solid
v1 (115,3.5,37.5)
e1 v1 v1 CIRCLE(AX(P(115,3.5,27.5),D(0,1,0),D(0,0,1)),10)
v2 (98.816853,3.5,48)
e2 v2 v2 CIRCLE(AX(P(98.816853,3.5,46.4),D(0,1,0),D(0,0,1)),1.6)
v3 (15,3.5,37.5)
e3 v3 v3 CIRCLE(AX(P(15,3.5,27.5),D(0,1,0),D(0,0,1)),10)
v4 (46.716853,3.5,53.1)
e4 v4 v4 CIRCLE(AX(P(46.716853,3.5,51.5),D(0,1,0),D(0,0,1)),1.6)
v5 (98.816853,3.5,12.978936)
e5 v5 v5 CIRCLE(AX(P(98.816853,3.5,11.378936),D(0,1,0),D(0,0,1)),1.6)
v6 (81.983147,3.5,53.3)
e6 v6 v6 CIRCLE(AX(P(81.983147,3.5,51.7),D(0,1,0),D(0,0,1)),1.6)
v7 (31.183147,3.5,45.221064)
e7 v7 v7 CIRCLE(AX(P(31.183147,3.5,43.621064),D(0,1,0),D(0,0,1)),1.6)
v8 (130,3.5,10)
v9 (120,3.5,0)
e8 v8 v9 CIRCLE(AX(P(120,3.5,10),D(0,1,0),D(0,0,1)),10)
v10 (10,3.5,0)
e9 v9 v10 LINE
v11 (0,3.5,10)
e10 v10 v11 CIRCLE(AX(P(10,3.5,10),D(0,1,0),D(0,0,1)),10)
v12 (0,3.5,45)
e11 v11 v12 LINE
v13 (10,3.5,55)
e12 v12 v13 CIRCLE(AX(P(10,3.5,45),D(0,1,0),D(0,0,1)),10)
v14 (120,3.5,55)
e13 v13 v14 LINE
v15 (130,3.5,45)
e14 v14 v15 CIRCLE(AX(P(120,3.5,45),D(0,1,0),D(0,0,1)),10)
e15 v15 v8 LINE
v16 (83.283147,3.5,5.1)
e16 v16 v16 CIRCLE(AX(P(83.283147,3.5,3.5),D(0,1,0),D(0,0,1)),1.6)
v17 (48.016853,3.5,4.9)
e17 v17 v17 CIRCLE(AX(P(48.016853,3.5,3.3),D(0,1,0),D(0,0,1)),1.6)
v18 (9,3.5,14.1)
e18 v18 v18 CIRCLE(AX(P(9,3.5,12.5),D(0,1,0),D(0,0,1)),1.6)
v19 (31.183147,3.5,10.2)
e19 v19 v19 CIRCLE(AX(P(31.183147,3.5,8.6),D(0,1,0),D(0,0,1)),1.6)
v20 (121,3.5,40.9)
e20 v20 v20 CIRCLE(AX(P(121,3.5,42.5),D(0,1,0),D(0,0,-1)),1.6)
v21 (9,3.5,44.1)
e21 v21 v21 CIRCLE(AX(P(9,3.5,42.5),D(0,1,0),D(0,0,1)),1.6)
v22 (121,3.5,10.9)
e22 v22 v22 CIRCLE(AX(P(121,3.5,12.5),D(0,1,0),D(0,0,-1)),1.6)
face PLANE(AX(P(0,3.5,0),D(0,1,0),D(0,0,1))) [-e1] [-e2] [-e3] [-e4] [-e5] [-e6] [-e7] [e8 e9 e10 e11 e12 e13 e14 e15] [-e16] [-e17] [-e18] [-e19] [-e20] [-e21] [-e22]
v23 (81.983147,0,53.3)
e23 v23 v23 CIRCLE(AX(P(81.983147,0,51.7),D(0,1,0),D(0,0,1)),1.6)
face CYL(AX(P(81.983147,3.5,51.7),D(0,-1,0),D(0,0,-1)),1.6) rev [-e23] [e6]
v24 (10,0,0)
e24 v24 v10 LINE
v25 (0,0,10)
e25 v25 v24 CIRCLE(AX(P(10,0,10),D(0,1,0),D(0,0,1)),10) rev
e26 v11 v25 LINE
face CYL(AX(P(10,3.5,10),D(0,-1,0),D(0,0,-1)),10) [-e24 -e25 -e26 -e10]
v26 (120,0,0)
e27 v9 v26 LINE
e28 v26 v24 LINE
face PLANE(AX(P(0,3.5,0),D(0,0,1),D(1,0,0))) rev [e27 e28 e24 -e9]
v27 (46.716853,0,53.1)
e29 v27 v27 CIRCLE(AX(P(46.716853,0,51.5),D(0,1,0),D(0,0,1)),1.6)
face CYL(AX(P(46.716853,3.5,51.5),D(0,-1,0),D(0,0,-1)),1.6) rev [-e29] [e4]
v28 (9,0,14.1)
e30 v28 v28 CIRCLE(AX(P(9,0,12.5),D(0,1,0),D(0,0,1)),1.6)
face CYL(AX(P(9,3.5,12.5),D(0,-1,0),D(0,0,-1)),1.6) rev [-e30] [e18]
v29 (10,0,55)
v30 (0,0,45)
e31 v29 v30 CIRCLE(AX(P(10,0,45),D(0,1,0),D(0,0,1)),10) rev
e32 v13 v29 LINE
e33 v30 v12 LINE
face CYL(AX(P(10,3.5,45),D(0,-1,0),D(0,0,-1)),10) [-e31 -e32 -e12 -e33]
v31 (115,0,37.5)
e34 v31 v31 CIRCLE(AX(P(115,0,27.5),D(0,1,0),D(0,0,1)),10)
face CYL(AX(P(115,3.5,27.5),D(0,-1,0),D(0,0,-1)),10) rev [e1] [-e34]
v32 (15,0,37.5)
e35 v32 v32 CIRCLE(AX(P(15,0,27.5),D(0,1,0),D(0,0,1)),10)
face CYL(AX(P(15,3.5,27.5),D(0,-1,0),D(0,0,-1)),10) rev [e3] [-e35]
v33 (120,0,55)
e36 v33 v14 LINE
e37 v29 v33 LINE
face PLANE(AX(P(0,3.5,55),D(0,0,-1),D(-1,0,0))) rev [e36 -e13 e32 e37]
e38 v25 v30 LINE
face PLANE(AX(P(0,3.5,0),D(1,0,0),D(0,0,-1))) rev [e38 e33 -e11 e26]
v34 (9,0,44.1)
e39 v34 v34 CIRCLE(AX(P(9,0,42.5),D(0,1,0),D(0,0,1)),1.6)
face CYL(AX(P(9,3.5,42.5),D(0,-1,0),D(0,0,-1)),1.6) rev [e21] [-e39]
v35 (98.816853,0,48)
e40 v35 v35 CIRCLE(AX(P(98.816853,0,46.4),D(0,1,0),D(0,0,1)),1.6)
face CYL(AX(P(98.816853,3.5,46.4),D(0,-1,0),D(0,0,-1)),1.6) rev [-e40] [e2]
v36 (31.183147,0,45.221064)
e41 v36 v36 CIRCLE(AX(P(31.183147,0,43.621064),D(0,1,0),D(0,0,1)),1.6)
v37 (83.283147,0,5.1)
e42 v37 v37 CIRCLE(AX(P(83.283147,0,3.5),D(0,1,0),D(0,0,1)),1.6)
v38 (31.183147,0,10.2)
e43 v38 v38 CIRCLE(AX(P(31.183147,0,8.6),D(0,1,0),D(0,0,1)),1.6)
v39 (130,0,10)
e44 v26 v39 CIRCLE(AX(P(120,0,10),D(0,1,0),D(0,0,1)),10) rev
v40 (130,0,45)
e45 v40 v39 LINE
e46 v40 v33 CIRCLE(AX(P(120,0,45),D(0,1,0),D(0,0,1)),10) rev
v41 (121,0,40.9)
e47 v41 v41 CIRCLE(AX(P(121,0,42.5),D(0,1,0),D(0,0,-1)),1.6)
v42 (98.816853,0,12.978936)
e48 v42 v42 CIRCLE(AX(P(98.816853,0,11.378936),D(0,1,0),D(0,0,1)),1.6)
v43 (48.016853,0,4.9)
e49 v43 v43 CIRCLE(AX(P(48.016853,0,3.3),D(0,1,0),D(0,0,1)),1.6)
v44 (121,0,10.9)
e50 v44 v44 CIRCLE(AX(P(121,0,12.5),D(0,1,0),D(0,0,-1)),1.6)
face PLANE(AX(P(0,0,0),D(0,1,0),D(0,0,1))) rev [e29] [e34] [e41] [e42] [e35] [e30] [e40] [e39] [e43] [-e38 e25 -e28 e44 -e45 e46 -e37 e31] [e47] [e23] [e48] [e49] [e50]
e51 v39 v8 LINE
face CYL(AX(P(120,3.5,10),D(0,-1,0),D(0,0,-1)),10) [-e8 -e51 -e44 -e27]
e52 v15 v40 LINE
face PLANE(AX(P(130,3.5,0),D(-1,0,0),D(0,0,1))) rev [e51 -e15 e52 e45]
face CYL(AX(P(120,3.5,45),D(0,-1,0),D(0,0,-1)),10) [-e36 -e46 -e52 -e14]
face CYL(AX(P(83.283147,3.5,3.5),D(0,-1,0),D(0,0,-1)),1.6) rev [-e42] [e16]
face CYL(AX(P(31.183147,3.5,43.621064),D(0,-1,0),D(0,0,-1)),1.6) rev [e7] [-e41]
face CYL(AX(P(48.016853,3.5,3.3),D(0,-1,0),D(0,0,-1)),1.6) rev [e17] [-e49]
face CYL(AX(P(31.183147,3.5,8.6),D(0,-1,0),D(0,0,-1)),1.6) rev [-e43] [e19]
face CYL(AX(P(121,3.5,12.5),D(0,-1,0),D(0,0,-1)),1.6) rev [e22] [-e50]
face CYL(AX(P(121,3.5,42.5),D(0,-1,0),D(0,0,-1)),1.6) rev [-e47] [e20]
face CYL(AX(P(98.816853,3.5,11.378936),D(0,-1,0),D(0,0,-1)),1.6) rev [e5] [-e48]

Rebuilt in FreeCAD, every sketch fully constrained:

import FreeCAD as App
import Part
import Sketcher

V = App.Vector


def edges_at(feature, points):
    """Names of the edges that pass closest to the given points."""
    edges = feature.Shape.Edges
    near = lambda p: min(range(len(edges)), key=lambda i: edges[i].distToShape(Part.Vertex(*p))[0])
    return sorted({f"Edge{near(p) + 1}" for p in points})


def add_polygon(sketch, points):
    """Adds a closed chain of lines whose ends are joined by coincident constraints."""
    first, n = sketch.GeometryCount, len(points)
    for a, b in zip(points, points[1:] + points[:1]):
        sketch.addGeometry(Part.LineSegment(App.Vector(*a, 0), App.Vector(*b, 0)), False)
    for i in range(n):
        sketch.addConstraint(Sketcher.Constraint("Coincident", first + i, 2, first + (i + 1) % n, 1))

doc = App.newDocument("Part")
body = doc.addObject("PartDesign::Body", "Body")

sketch1 = body.newObject("Sketcher::SketchObject", "Sketch")
sketch1.AttachmentSupport = (doc.getObject("XZ_Plane"), [""])
sketch1.MapMode = "FlatFace"
add_polygon(sketch1, [(0, 0), (0, 55), (130, 55), (130, 0)])
sketch1.addGeometry(Part.Circle(V(9, 42.5, 0), V(0, 0, 1), 1.6), False)
sketch1.addGeometry(Part.Circle(V(31.2, 43.6, 0), V(0, 0, 1), 1.6), False)
sketch1.addGeometry(Part.Circle(V(46.7, 51.5, 0), V(0, 0, 1), 1.6), False)
sketch1.addGeometry(Part.Circle(V(82, 51.7, 0), V(0, 0, 1), 1.6), False)
sketch1.addGeometry(Part.Circle(V(98.8, 46.4, 0), V(0, 0, 1), 1.6), False)
sketch1.addGeometry(Part.Circle(V(121, 42.5, 0), V(0, 0, 1), 1.6), False)
sketch1.addGeometry(Part.Circle(V(15, 27.5, 0), V(0, 0, 1), 10), False)
sketch1.addGeometry(Part.Circle(V(9, 12.5, 0), V(0, 0, 1), 1.6), False)
sketch1.addGeometry(Part.Circle(V(31.2, 8.6, 0), V(0, 0, 1), 1.6), False)
sketch1.addGeometry(Part.Circle(V(48, 3.3, 0), V(0, 0, 1), 1.6), False)
sketch1.addGeometry(Part.Circle(V(115, 27.5, 0), V(0, 0, 1), 10), False)
sketch1.addGeometry(Part.Circle(V(83.3, 3.5, 0), V(0, 0, 1), 1.6), False)
sketch1.addGeometry(Part.Circle(V(98.8, 11.4, 0), V(0, 0, 1), 1.6), False)
sketch1.addGeometry(Part.Circle(V(121, 12.5, 0), V(0, 0, 1), 1.6), False)
sketch1.addConstraint(Sketcher.Constraint("Vertical", 0))
sketch1.addConstraint(Sketcher.Constraint("Horizontal", 1))
sketch1.addConstraint(Sketcher.Constraint("Vertical", 2))
sketch1.addConstraint(Sketcher.Constraint("Horizontal", 3))
sketch1.addConstraint(Sketcher.Constraint("Coincident", 3, 2, -1, 1))
sketch1.addConstraint(Sketcher.Constraint("Equal", 4, 5))
sketch1.addConstraint(Sketcher.Constraint("Equal", 5, 6))
sketch1.addConstraint(Sketcher.Constraint("Equal", 6, 7))
sketch1.addConstraint(Sketcher.Constraint("Equal", 7, 8))
sketch1.addConstraint(Sketcher.Constraint("Equal", 8, 9))
sketch1.addConstraint(Sketcher.Constraint("Equal", 9, 11))
sketch1.addConstraint(Sketcher.Constraint("Equal", 11, 12))
sketch1.addConstraint(Sketcher.Constraint("Equal", 12, 13))
sketch1.addConstraint(Sketcher.Constraint("Equal", 10, 14))
sketch1.addConstraint(Sketcher.Constraint("Equal", 13, 15))
sketch1.addConstraint(Sketcher.Constraint("Equal", 15, 16))
sketch1.addConstraint(Sketcher.Constraint("Equal", 16, 17))
sketch1.addConstraint(Sketcher.Constraint("Horizontal", 4, 3, 9, 3))
sketch1.addConstraint(Sketcher.Constraint("Horizontal", 10, 3, 14, 3))
sketch1.addConstraint(Sketcher.Constraint("Horizontal", 11, 3, 17, 3))
sketch1.addConstraint(Sketcher.Constraint("Vertical", 4, 3, 11, 3))
sketch1.addConstraint(Sketcher.Constraint("Vertical", 5, 3, 12, 3))
sketch1.addConstraint(Sketcher.Constraint("Vertical", 8, 3, 16, 3))
sketch1.addConstraint(Sketcher.Constraint("Vertical", 9, 3, 17, 3))
sketch1.addConstraint(Sketcher.Constraint("Diameter", 10, 20.0))
sketch1.addConstraint(Sketcher.Constraint("Diameter", 4, 3.2))
sketch1.addConstraint(Sketcher.Constraint("DistanceX", 1, 1, 1, 2, 130.0))
sketch1.addConstraint(Sketcher.Constraint("DistanceY", 0, 1, 0, 2, 55.0))
sketch1.addConstraint(Sketcher.Constraint("DistanceX", -1, 1, 4, 3, 9.0))
sketch1.addConstraint(Sketcher.Constraint("DistanceX", -1, 1, 9, 3, 121.0))
sketch1.addConstraint(Sketcher.Constraint("DistanceX", -1, 1, 10, 3, 15.0))
sketch1.addConstraint(Sketcher.Constraint("DistanceX", -1, 1, 14, 3, 115.0))
sketch1.addConstraint(Sketcher.Constraint("DistanceY", 4, 3, 6, 3, 9.0))
sketch1.addConstraint(Sketcher.Constraint("DistanceY", 10, 3, 4, 3, 15.0))
sketch1.addConstraint(Sketcher.Constraint("DistanceY", 11, 3, 10, 3, 15.0))
sketch1.addConstraint(Sketcher.Constraint("DistanceY", 15, 3, 14, 3, 24.0))
sketch1.addConstraint(Sketcher.Constraint("DistanceY", -1, 1, 4, 3, 42.5))
sketch1.addConstraint(Sketcher.Constraint("DistanceY", -1, 1, 7, 3, 51.7))
sketch1.addConstraint(Sketcher.Constraint("DistanceY", -1, 1, 8, 3, 46.4))
sketch1.addConstraint(Sketcher.Constraint("DistanceY", -1, 1, 12, 3, 8.6))
sketch1.addConstraint(Sketcher.Constraint("DistanceY", -1, 1, 13, 3, 3.3))
sketch1.addConstraint(Sketcher.Constraint("DistanceX", 5, 3, 7, 3, 50.8))
sketch1.addConstraint(Sketcher.Constraint("DistanceX", 6, 3, 8, 3, 52.1))
sketch1.addConstraint(Sketcher.Constraint("DistanceX", 6, 3, 13, 3, 1.3))
sketch1.addConstraint(Sketcher.Constraint("DistanceX", 7, 3, 15, 3, 1.3))
sketch1.addConstraint(Sketcher.Constraint("DistanceX", -1, 1, 5, 3, 31.183147))
sketch1.addConstraint(Sketcher.Constraint("DistanceY", -1, 1, 5, 3, 43.621064))
sketch1.addConstraint(Sketcher.Constraint("DistanceX", -1, 1, 6, 3, 46.716853))
sketch1.addConstraint(Sketcher.Constraint("DistanceY", -1, 1, 16, 3, 11.378936))
pad1 = body.newObject("PartDesign::Pad", "Pad")
pad1.Profile = sketch1
pad1.Length = 3.5
pad1.Reversed = True
doc.recompute()

fillet = body.newObject("PartDesign::Fillet", "Fillet")
fillet.Base = (pad1, edges_at(pad1, [
    (0, 1.75, 0),
    (130, 1.75, 0),
    (130, 1.75, 55),
    (0, 1.75, 55),
]))
fillet.Radius = 10

doc.recompute()
